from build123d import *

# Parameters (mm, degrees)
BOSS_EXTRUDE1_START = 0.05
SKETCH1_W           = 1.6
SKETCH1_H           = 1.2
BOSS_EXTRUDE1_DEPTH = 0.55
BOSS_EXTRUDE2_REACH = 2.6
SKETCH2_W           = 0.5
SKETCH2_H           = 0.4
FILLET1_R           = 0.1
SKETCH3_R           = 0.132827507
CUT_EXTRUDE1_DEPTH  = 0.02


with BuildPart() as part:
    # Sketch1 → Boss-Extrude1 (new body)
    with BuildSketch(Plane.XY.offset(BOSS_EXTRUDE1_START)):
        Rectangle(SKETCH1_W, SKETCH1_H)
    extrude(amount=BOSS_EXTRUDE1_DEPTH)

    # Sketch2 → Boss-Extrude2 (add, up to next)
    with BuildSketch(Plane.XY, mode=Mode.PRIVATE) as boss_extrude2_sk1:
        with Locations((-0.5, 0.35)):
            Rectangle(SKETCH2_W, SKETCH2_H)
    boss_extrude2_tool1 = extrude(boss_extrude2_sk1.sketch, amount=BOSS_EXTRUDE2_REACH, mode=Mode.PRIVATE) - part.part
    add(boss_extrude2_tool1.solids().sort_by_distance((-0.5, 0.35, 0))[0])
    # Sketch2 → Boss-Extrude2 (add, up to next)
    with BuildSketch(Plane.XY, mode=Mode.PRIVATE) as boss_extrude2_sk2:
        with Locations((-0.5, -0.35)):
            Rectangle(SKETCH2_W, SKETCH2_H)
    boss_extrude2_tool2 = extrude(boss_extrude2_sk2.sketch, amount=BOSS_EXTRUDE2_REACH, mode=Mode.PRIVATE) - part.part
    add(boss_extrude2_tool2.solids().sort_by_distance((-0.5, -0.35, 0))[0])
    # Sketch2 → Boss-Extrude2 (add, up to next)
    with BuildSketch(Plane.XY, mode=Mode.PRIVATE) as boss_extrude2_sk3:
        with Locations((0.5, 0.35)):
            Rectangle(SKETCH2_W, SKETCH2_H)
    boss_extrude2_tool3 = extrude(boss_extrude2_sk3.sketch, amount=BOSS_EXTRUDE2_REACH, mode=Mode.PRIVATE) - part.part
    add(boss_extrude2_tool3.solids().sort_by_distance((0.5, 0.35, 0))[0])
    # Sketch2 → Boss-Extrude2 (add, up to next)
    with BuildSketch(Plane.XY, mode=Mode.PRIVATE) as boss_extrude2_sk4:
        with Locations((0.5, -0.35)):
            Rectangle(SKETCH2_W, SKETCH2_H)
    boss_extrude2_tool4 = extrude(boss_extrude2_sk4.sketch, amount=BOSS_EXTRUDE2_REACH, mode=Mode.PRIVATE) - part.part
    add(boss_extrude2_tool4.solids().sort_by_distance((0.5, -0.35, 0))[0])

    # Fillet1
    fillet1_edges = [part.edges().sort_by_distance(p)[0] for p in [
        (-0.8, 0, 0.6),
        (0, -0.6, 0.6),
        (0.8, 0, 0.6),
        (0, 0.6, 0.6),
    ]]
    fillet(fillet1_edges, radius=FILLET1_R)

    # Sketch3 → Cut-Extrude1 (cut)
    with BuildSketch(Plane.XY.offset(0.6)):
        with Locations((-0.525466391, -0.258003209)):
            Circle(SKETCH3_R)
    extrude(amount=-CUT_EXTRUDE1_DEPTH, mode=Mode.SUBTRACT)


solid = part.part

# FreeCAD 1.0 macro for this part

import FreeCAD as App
import Part
import Sketcher
from FreeCAD import Vector


def edges_at(feature, points):
    """Names of the edges that pass closest to the given points."""
    edges = feature.Shape.Edges
    near = lambda p: min(range(len(edges)), key=lambda i: edges[i].distToShape(Part.Vertex(*p))[0])
    return sorted({f"Edge{near(p) + 1}" for p in points})

doc = App.newDocument("Part")
body = doc.addObject("PartDesign::Body", "Body")

sketch1 = body.newObject("Sketcher::SketchObject", "Sketch")
sketch1.AttachmentSupport = (doc.getObject("XY_Plane"), [""])
sketch1.MapMode = "FlatFace"
sketch1.AttachmentOffset = App.Placement(Vector(0, 0, 0.05), App.Rotation())
sketch1.addGeometry(Part.LineSegment(Vector(-0.8, 0.6, 0), Vector(-0.8, -0.6, 0)), False)
sketch1.addGeometry(Part.LineSegment(Vector(-0.8, -0.6, 0), Vector(0.8, -0.6, 0)), False)
sketch1.addGeometry(Part.LineSegment(Vector(0.8, -0.6, 0), Vector(0.8, 0.6, 0)), False)
sketch1.addGeometry(Part.LineSegment(Vector(0.8, 0.6, 0), Vector(-0.8, 0.6, 0)), False)
sketch1.addConstraint(Sketcher.Constraint("Coincident", 0, 2, 1, 1))
sketch1.addConstraint(Sketcher.Constraint("Coincident", 1, 2, 2, 1))
sketch1.addConstraint(Sketcher.Constraint("Coincident", 2, 2, 3, 1))
sketch1.addConstraint(Sketcher.Constraint("Coincident", 3, 2, 0, 1))
sketch1.addConstraint(Sketcher.Constraint("Vertical", 0))
sketch1.addConstraint(Sketcher.Constraint("Horizontal", 1))
sketch1.addConstraint(Sketcher.Constraint("Vertical", 2))
sketch1.addConstraint(Sketcher.Constraint("Horizontal", 3))
sketch1.addConstraint(Sketcher.Constraint("Symmetric", 0, 2, 2, 2, -1, 1))
sketch1.addConstraint(Sketcher.Constraint("DistanceX", 1, 1, 1, 2, 1.6))
sketch1.addConstraint(Sketcher.Constraint("DistanceY", 0, 2, 0, 1, 1.2))
pad1 = body.newObject("PartDesign::Pad", "Pad")
pad1.Profile = sketch1
pad1.Length = 0.55

sketch2 = body.newObject("Sketcher::SketchObject", "Sketch001")
sketch2.AttachmentSupport = (doc.getObject("XY_Plane"), [""])
sketch2.MapMode = "FlatFace"
sketch2.addGeometry(Part.LineSegment(Vector(-0.75, 0.55, 0), Vector(-0.75, 0.15, 0)), False)
sketch2.addGeometry(Part.LineSegment(Vector(-0.75, 0.15, 0), Vector(-0.25, 0.15, 0)), False)
sketch2.addGeometry(Part.LineSegment(Vector(-0.25, 0.15, 0), Vector(-0.25, 0.55, 0)), False)
sketch2.addGeometry(Part.LineSegment(Vector(-0.25, 0.55, 0), Vector(-0.75, 0.55, 0)), False)
sketch2.addConstraint(Sketcher.Constraint("Coincident", 0, 2, 1, 1))
sketch2.addConstraint(Sketcher.Constraint("Coincident", 1, 2, 2, 1))
sketch2.addConstraint(Sketcher.Constraint("Coincident", 2, 2, 3, 1))
sketch2.addConstraint(Sketcher.Constraint("Coincident", 3, 2, 0, 1))
sketch2.addConstraint(Sketcher.Constraint("Vertical", 0))
sketch2.addConstraint(Sketcher.Constraint("Horizontal", 1))
sketch2.addConstraint(Sketcher.Constraint("Vertical", 2))
sketch2.addConstraint(Sketcher.Constraint("Horizontal", 3))
sketch2.addConstraint(Sketcher.Constraint("DistanceX", 1, 1, 1, 2, 0.5))
sketch2.addConstraint(Sketcher.Constraint("DistanceY", 0, 2, 0, 1, 0.4))
sketch2.addConstraint(Sketcher.Constraint("DistanceX", 0, 2, -1, 1, 0.75))
sketch2.addConstraint(Sketcher.Constraint("DistanceY", -1, 1, 0, 2, 0.15))
pad2 = body.newObject("PartDesign::Pad", "Pad001")
pad2.Profile = sketch2
pad2.Type = "UpToFirst"

sketch3 = body.newObject("Sketcher::SketchObject", "Sketch002")
sketch3.AttachmentSupport = (doc.getObject("XY_Plane"), [""])
sketch3.MapMode = "FlatFace"
sketch3.addGeometry(Part.LineSegment(Vector(-0.75, -0.15, 0), Vector(-0.75, -0.55, 0)), False)
sketch3.addGeometry(Part.LineSegment(Vector(-0.75, -0.55, 0), Vector(-0.25, -0.55, 0)), False)
sketch3.addGeometry(Part.LineSegment(Vector(-0.25, -0.55, 0), Vector(-0.25, -0.15, 0)), False)
sketch3.addGeometry(Part.LineSegment(Vector(-0.25, -0.15, 0), Vector(-0.75, -0.15, 0)), False)
sketch3.addConstraint(Sketcher.Constraint("Coincident", 0, 2, 1, 1))
sketch3.addConstraint(Sketcher.Constraint("Coincident", 1, 2, 2, 1))
sketch3.addConstraint(Sketcher.Constraint("Coincident", 2, 2, 3, 1))
sketch3.addConstraint(Sketcher.Constraint("Coincident", 3, 2, 0, 1))
sketch3.addConstraint(Sketcher.Constraint("Vertical", 0))
sketch3.addConstraint(Sketcher.Constraint("Horizontal", 1))
sketch3.addConstraint(Sketcher.Constraint("Vertical", 2))
sketch3.addConstraint(Sketcher.Constraint("Horizontal", 3))
sketch3.addConstraint(Sketcher.Constraint("DistanceX", 1, 1, 1, 2, 0.5))
sketch3.addConstraint(Sketcher.Constraint("DistanceY", 0, 2, 0, 1, 0.4))
sketch3.addConstraint(Sketcher.Constraint("DistanceX", 0, 2, -1, 1, 0.75))
sketch3.addConstraint(Sketcher.Constraint("DistanceY", 0, 2, -1, 1, 0.55))
pad3 = body.newObject("PartDesign::Pad", "Pad002")
pad3.Profile = sketch3
pad3.Type = "UpToFirst"

sketch4 = body.newObject("Sketcher::SketchObject", "Sketch003")
sketch4.AttachmentSupport = (doc.getObject("XY_Plane"), [""])
sketch4.MapMode = "FlatFace"
sketch4.addGeometry(Part.LineSegment(Vector(0.25, 0.55, 0), Vector(0.25, 0.15, 0)), False)
sketch4.addGeometry(Part.LineSegment(Vector(0.25, 0.15, 0), Vector(0.75, 0.15, 0)), False)
sketch4.addGeometry(Part.LineSegment(Vector(0.75, 0.15, 0), Vector(0.75, 0.55, 0)), False)
sketch4.addGeometry(Part.LineSegment(Vector(0.75, 0.55, 0), Vector(0.25, 0.55, 0)), False)
sketch4.addConstraint(Sketcher.Constraint("Coincident", 0, 2, 1, 1))
sketch4.addConstraint(Sketcher.Constraint("Coincident", 1, 2, 2, 1))
sketch4.addConstraint(Sketcher.Constraint("Coincident", 2, 2, 3, 1))
sketch4.addConstraint(Sketcher.Constraint("Coincident", 3, 2, 0, 1))
sketch4.addConstraint(Sketcher.Constraint("Vertical", 0))
sketch4.addConstraint(Sketcher.Constraint("Horizontal", 1))
sketch4.addConstraint(Sketcher.Constraint("Vertical", 2))
sketch4.addConstraint(Sketcher.Constraint("Horizontal", 3))
sketch4.addConstraint(Sketcher.Constraint("DistanceX", 1, 1, 1, 2, 0.5))
sketch4.addConstraint(Sketcher.Constraint("DistanceY", 0, 2, 0, 1, 0.4))
sketch4.addConstraint(Sketcher.Constraint("DistanceX", -1, 1, 0, 2, 0.25))
sketch4.addConstraint(Sketcher.Constraint("DistanceY", -1, 1, 0, 2, 0.15))
pad4 = body.newObject("PartDesign::Pad", "Pad003")
pad4.Profile = sketch4
pad4.Type = "UpToFirst"

sketch5 = body.newObject("Sketcher::SketchObject", "Sketch004")
sketch5.AttachmentSupport = (doc.getObject("XY_Plane"), [""])
sketch5.MapMode = "FlatFace"
sketch5.addGeometry(Part.LineSegment(Vector(0.25, -0.15, 0), Vector(0.25, -0.55, 0)), False)
sketch5.addGeometry(Part.LineSegment(Vector(0.25, -0.55, 0), Vector(0.75, -0.55, 0)), False)
sketch5.addGeometry(Part.LineSegment(Vector(0.75, -0.55, 0), Vector(0.75, -0.15, 0)), False)
sketch5.addGeometry(Part.LineSegment(Vector(0.75, -0.15, 0), Vector(0.25, -0.15, 0)), False)
sketch5.addConstraint(Sketcher.Constraint("Coincident", 0, 2, 1, 1))
sketch5.addConstraint(Sketcher.Constraint("Coincident", 1, 2, 2, 1))
sketch5.addConstraint(Sketcher.Constraint("Coincident", 2, 2, 3, 1))
sketch5.addConstraint(Sketcher.Constraint("Coincident", 3, 2, 0, 1))
sketch5.addConstraint(Sketcher.Constraint("Vertical", 0))
sketch5.addConstraint(Sketcher.Constraint("Horizontal", 1))
sketch5.addConstraint(Sketcher.Constraint("Vertical", 2))
sketch5.addConstraint(Sketcher.Constraint("Horizontal", 3))
sketch5.addConstraint(Sketcher.Constraint("DistanceX", 1, 1, 1, 2, 0.5))
sketch5.addConstraint(Sketcher.Constraint("DistanceY", 0, 2, 0, 1, 0.4))
sketch5.addConstraint(Sketcher.Constraint("DistanceX", -1, 1, 0, 2, 0.25))
sketch5.addConstraint(Sketcher.Constraint("DistanceY", 0, 2, -1, 1, 0.55))
pad5 = body.newObject("PartDesign::Pad", "Pad004")
pad5.Profile = sketch5
pad5.Type = "UpToFirst"
doc.recompute()

fillet = body.newObject("PartDesign::Fillet", "Fillet")
fillet.Base = (pad5, edges_at(pad5, [
    (-0.8, 0, 0.6),
    (0, -0.6, 0.6),
    (0.8, 0, 0.6),
    (0, 0.6, 0.6),
]))
fillet.Radius = 0.1

sketch6 = body.newObject("Sketcher::SketchObject", "Sketch005")
sketch6.AttachmentSupport = (doc.getObject("XY_Plane"), [""])
sketch6.MapMode = "FlatFace"
sketch6.AttachmentOffset = App.Placement(Vector(0, 0, 0.6), App.Rotation())
sketch6.addGeometry(Part.Circle(Vector(-0.53, -0.26, 0), Vector(0, 0, 1), 0.13), False)
sketch6.addConstraint(Sketcher.Constraint("Diameter", 0, 0.265655))
sketch6.addConstraint(Sketcher.Constraint("DistanceX", 0, 3, -1, 1, 0.525466))
sketch6.addConstraint(Sketcher.Constraint("DistanceY", 0, 3, -1, 1, 0.258003))
pocket1 = body.newObject("PartDesign::Pocket", "Pocket")
pocket1.Profile = sketch6
pocket1.Length = 0.02

doc.recompute()
